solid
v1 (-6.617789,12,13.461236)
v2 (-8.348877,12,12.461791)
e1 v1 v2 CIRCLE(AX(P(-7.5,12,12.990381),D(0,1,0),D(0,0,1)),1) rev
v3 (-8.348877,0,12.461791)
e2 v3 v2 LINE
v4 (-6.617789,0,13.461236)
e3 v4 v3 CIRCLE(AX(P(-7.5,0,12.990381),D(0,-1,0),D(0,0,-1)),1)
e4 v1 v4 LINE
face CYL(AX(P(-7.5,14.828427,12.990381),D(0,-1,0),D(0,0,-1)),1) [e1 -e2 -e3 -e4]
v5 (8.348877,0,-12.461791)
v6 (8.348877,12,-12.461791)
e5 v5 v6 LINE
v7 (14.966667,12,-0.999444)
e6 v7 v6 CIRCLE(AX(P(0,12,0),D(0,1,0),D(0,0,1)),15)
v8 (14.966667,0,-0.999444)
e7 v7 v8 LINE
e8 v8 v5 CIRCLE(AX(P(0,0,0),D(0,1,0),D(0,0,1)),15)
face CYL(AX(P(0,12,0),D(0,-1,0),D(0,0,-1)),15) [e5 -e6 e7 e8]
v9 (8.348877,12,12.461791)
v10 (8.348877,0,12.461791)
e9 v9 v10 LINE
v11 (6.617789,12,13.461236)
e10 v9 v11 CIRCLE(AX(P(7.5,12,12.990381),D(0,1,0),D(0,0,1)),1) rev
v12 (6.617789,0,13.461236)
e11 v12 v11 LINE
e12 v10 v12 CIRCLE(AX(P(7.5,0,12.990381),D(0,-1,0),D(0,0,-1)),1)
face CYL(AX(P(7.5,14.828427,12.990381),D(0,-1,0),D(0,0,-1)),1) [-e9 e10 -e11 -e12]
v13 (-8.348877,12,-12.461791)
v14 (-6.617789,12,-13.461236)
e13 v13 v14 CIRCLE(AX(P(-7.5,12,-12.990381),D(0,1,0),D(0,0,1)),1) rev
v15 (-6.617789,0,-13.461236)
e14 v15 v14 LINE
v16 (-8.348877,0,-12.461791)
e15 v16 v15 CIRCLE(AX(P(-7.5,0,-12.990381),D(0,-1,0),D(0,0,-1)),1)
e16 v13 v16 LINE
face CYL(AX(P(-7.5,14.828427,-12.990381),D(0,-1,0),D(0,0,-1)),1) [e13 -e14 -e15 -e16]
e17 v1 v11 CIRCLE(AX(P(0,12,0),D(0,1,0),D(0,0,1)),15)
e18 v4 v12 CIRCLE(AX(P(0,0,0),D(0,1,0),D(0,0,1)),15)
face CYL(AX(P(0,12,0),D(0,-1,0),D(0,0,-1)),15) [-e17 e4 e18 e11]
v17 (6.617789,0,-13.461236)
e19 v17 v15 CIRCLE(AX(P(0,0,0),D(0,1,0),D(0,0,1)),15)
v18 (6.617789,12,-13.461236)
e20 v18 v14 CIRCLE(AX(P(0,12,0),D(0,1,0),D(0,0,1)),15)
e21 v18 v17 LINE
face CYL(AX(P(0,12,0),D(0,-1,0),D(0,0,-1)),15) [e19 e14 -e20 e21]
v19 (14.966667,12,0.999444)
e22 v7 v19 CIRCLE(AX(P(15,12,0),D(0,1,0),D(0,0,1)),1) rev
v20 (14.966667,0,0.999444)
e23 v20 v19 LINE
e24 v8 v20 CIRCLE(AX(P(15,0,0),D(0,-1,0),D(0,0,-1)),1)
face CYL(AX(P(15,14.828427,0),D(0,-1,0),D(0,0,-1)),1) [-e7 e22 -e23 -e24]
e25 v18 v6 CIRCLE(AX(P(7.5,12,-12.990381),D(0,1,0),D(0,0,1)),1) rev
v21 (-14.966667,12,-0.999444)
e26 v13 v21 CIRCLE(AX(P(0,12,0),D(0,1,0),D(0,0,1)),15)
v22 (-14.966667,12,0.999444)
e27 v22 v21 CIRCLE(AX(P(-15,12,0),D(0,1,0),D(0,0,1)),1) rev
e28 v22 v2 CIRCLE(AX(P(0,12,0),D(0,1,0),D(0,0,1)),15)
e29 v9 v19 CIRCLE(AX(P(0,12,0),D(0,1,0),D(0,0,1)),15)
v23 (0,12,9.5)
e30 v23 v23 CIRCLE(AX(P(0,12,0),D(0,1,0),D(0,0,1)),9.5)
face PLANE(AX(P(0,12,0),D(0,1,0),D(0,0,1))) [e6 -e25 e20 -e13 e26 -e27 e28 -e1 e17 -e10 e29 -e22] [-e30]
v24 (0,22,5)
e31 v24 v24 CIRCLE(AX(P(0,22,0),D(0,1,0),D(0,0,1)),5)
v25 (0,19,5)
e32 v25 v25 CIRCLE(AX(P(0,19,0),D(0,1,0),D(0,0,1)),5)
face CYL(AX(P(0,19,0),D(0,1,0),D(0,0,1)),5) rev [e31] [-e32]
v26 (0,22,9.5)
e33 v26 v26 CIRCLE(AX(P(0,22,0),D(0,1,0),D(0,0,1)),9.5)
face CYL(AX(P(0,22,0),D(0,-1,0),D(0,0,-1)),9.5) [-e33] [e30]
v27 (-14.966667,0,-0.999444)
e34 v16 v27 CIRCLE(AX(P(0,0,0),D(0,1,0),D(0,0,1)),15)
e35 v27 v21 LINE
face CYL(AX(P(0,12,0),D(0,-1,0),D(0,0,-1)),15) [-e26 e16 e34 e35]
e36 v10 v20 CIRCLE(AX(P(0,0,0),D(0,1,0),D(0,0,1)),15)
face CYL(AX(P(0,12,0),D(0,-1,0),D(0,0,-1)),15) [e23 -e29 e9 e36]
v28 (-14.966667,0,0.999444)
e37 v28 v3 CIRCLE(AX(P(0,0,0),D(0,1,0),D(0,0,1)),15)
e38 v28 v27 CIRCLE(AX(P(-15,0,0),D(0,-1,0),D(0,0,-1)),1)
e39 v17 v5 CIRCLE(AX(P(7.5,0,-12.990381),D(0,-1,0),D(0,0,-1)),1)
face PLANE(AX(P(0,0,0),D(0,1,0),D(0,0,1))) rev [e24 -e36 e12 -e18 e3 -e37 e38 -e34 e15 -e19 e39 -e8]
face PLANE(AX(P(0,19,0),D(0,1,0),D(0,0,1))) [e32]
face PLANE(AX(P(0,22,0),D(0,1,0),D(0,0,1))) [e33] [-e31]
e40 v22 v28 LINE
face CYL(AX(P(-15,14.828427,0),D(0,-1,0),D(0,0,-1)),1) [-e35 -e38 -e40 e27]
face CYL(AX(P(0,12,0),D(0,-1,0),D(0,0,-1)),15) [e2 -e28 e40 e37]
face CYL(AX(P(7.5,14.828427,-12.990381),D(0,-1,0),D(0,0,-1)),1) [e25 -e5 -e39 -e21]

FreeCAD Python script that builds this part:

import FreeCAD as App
import Part
import Sketcher
from FreeCAD import Vector
Q = App.Units.Quantity

doc = App.newDocument("Part")
body = doc.addObject("PartDesign::Body", "Body")

# Sketch on XZ plane
sketch1 = body.newObject("Sketcher::SketchObject", "Sketch")
sketch1.AttachmentSupport = (doc.getObject("XZ_Plane"), [""])
sketch1.MapMode = "FlatFace"
sketch1.addGeometry(Part.Circle(Vector(0, 0, 0), Vector(0, 0, 1), 15), False)
sketch1.addConstraint([
    Sketcher.Constraint("Coincident", 0, 3, -1, 1),
    Sketcher.Constraint("Diameter", 0, Q("30 mm")),
])
pad1 = body.newObject("PartDesign::Pad", "Pad")
pad1.Profile = sketch1
pad1.Length = 12
pad1.Reversed = True

# Sketch on XZ plane
sketch2 = body.newObject("Sketcher::SketchObject", "Sketch001")
sketch2.AttachmentSupport = (doc.getObject("XZ_Plane"), [""])
sketch2.MapMode = "FlatFace"
sketch2.AttachmentOffset = App.Placement(Vector(0, 0, -12), App.Rotation())
sketch2.addGeometry(Part.Circle(Vector(0, 0, 0), Vector(0, 0, 1), 10), False)
sketch2.addConstraint([
    Sketcher.Constraint("Coincident", 0, 3, -1, 1),
    Sketcher.Constraint("Diameter", 0, Q("19 mm")),
])
pad2 = body.newObject("PartDesign::Pad", "Pad001")
pad2.Profile = sketch2
pad2.Length = 10
pad2.Reversed = True

# Sketch on XZ plane
sketch3 = body.newObject("Sketcher::SketchObject", "Sketch002")
sketch3.AttachmentSupport = (doc.getObject("XZ_Plane"), [""])
sketch3.MapMode = "FlatFace"
sketch3.AttachmentOffset = App.Placement(Vector(0, 0, -22), App.Rotation())
sketch3.addGeometry(Part.Circle(Vector(0, 0, 0), Vector(0, 0, 1), 5), False)
sketch3.addConstraint([
    Sketcher.Constraint("Coincident", 0, 3, -1, 1),
    Sketcher.Constraint("Diameter", 0, Q("10 mm")),
])
pocket1 = body.newObject("PartDesign::Pocket", "Pocket")
pocket1.Profile = sketch3
pocket1.Length = 3
pocket1.Reversed = True

# Sketch on XZ plane
sketch4 = body.newObject("Sketcher::SketchObject", "Sketch003")
sketch4.AttachmentSupport = (doc.getObject("XZ_Plane"), [""])
sketch4.MapMode = "FlatFace"
sketch4.addGeometry([
    Part.Circle(Vector(15, 0, 0), Vector(0, 0, 1), 1),  # 0
    Part.Circle(Vector(7.5, -13, 0), Vector(0, 0, 1), 1),  # 1
    Part.Circle(Vector(-7.5, -13, 0), Vector(0, 0, 1), 1),  # 2
    Part.Circle(Vector(-15, 0, 0), Vector(0, 0, 1), 1),  # 3
    Part.Circle(Vector(-7.5, 13, 0), Vector(0, 0, 1), 1),  # 4
    Part.Circle(Vector(7.5, 13, 0), Vector(0, 0, 1), 1),  # 5
], False)
sketch4.addConstraint([
    Sketcher.Constraint("Equal", 0, 1),
    Sketcher.Constraint("Equal", 1, 2),
    Sketcher.Constraint("Equal", 2, 3),
    Sketcher.Constraint("Equal", 3, 4),
    Sketcher.Constraint("Equal", 4, 5),
    Sketcher.Constraint("Symmetric", 0, 3, 3, 3, -1, 1),
    Sketcher.Constraint("Symmetric", 1, 3, 4, 3, -1, 1),
    Sketcher.Constraint("Symmetric", 2, 3, 5, 3, -1, 1),
    Sketcher.Constraint("Symmetric", 1, 3, 2, 3, -2),
    Sketcher.Constraint("PointOnObject", 0, 3, -1),
    Sketcher.Constraint("Diameter", 0, Q("2 mm")),
    Sketcher.Constraint("DistanceX", -1, 1, 0, 3, Q("15 mm")),
    Sketcher.Constraint("DistanceX", 2, 3, 1, 3, Q("15 mm")),
    Sketcher.Constraint("DistanceY", 1, 3, -1, 1, Q("12.990381 mm")),
])
pad3 = body.newObject("PartDesign::Pad", "Pad002")
pad3.Profile = sketch4
pad3.Length = 12
pad3.Reversed = True

doc.recompute()
